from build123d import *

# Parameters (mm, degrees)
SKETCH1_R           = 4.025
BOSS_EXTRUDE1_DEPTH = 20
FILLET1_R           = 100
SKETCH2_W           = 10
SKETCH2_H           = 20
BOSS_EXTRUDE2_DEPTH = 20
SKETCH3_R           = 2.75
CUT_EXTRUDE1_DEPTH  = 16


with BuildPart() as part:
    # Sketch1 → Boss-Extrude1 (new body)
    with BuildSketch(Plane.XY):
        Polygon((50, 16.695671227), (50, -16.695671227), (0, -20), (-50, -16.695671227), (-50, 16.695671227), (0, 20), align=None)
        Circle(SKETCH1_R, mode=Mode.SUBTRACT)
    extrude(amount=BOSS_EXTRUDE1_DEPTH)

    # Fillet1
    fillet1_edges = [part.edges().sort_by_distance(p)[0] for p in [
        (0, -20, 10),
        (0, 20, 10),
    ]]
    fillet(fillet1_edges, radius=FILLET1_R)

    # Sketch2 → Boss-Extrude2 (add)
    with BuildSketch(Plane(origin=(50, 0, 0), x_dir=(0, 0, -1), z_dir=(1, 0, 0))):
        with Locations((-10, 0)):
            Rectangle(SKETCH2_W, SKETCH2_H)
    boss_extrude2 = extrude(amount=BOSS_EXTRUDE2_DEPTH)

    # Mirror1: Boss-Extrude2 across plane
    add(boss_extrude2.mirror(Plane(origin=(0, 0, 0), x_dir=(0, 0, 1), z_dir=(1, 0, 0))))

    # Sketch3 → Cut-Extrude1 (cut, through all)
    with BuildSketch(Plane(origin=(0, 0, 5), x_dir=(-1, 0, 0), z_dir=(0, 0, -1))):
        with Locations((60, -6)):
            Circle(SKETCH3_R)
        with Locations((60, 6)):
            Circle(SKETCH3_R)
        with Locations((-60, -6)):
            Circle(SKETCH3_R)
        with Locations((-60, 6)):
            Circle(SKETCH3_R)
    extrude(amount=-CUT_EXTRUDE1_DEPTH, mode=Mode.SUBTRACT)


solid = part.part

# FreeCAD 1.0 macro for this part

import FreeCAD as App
import Part
import Sketcher


def edges_at(feature, points):
    """Names of the edges that pass closest to the given points."""
    edges = feature.Shape.Edges
    near = lambda p: min(range(len(edges)), key=lambda i: edges[i].distToShape(Part.Vertex(*p))[0])
    return sorted({f"Edge{near(p) + 1}" for p in points})

doc = App.newDocument("Part")
body = doc.addObject("PartDesign::Body", "Body")

sketch1 = body.newObject("Sketcher::SketchObject", "Sketch")
sketch1.AttachmentSupport = (doc.getObject("XY_Plane"), [""])
sketch1.MapMode = "FlatFace"
sketch1.addGeometry(Part.LineSegment(App.Vector(50, -16.7, 0), App.Vector(50, 16.7, 0)), False)
sketch1.addGeometry(Part.LineSegment(App.Vector(50, 16.7, 0), App.Vector(0, 20, 0)), False)
sketch1.addGeometry(Part.LineSegment(App.Vector(0, 20, 0), App.Vector(-50, 16.7, 0)), False)
sketch1.addGeometry(Part.LineSegment(App.Vector(-50, 16.7, 0), App.Vector(-50, -16.7, 0)), False)
sketch1.addGeometry(Part.LineSegment(App.Vector(-50, -16.7, 0), App.Vector(0, -20, 0)), False)
sketch1.addGeometry(Part.LineSegment(App.Vector(0, -20, 0), App.Vector(50, -16.7, 0)), False)
sketch1.addGeometry(Part.Circle(App.Vector(0, 0, 0), App.Vector(0, 0, 1), 4), False)
sketch1.addConstraint(Sketcher.Constraint("Coincident", 0, 2, 1, 1))
sketch1.addConstraint(Sketcher.Constraint("Coincident", 1, 2, 2, 1))
sketch1.addConstraint(Sketcher.Constraint("Coincident", 2, 2, 3, 1))
sketch1.addConstraint(Sketcher.Constraint("Coincident", 3, 2, 4, 1))
sketch1.addConstraint(Sketcher.Constraint("Coincident", 4, 2, 5, 1))
sketch1.addConstraint(Sketcher.Constraint("Coincident", 5, 2, 0, 1))
sketch1.addConstraint(Sketcher.Constraint("Vertical", 0))
sketch1.addConstraint(Sketcher.Constraint("Vertical", 3))
sketch1.addConstraint(Sketcher.Constraint("Coincident", 6, 3, -1, 1))
sketch1.addConstraint(Sketcher.Constraint("Symmetric", 0, 2, 3, 2, -1, 1))
sketch1.addConstraint(Sketcher.Constraint("Symmetric", 1, 2, 4, 2, -1, 1))
sketch1.addConstraint(Sketcher.Constraint("PointOnObject", 1, 2, -2))
sketch1.addConstraint(Sketcher.Constraint("Parallel", 2, 5))
sketch1.addConstraint(Sketcher.Constraint("Horizontal", 0, 2, 2, 2))
sketch1.addConstraint(Sketcher.Constraint("Diameter", 6, 8.05))
sketch1.addConstraint(Sketcher.Constraint("DistanceX", -1, 1, 0, 2, 50.0))
sketch1.addConstraint(Sketcher.Constraint("DistanceY", -1, 1, 1, 2, 20.0))
sketch1.addConstraint(Sketcher.Constraint("DistanceY", 0, 1, 0, 2, 33.391342))
pad1 = body.newObject("PartDesign::Pad", "Pad")
pad1.Profile = sketch1
pad1.Length = 20
doc.recompute()

fillet = body.newObject("PartDesign::Fillet", "Fillet")
fillet.Base = (pad1, edges_at(pad1, [(0, -20, 10), (0, 20, 10)]))
fillet.Radius = 100

sketch2 = body.newObject("Sketcher::SketchObject", "Sketch001")
sketch2.AttachmentSupport = (doc.getObject("YZ_Plane"), [""])
sketch2.MapMode = "FlatFace"
sketch2.AttachmentOffset = App.Placement(App.Vector(0, 0, 50), App.Rotation())
sketch2.addGeometry(Part.LineSegment(App.Vector(10, 15, 0), App.Vector(-10, 15, 0)), False)
sketch2.addGeometry(Part.LineSegment(App.Vector(-10, 15, 0), App.Vector(-10, 5, 0)), False)
sketch2.addGeometry(Part.LineSegment(App.Vector(-10, 5, 0), App.Vector(10, 5, 0)), False)
sketch2.addGeometry(Part.LineSegment(App.Vector(10, 5, 0), App.Vector(10, 15, 0)), False)
sketch2.addConstraint(Sketcher.Constraint("Coincident", 0, 2, 1, 1))
sketch2.addConstraint(Sketcher.Constraint("Coincident", 1, 2, 2, 1))
sketch2.addConstraint(Sketcher.Constraint("Coincident", 2, 2, 3, 1))
sketch2.addConstraint(Sketcher.Constraint("Coincident", 3, 2, 0, 1))
sketch2.addConstraint(Sketcher.Constraint("Horizontal", 0))
sketch2.addConstraint(Sketcher.Constraint("Vertical", 1))
sketch2.addConstraint(Sketcher.Constraint("Horizontal", 2))
sketch2.addConstraint(Sketcher.Constraint("Vertical", 3))
sketch2.addConstraint(Sketcher.Constraint("DistanceX", 0, 2, 0, 1, 20.0))
sketch2.addConstraint(Sketcher.Constraint("DistanceY", 1, 2, 1, 1, 10.0))
sketch2.addConstraint(Sketcher.Constraint("DistanceX", 0, 2, -1, 1, 10.0))
sketch2.addConstraint(Sketcher.Constraint("DistanceY", -1, 1, 0, 2, 15.0))
pad2 = body.newObject("PartDesign::Pad", "Pad001")
pad2.Profile = sketch2
pad2.Length = 20
doc.recompute()

mirrored = body.newObject("PartDesign::Mirrored", "Mirrored")
mirrored.Originals = [pad2]
mirrored.MirrorPlane = (doc.getObject("YZ_Plane"), [""])
body.Tip = mirrored

sketch3 = body.newObject("Sketcher::SketchObject", "Sketch002")
sketch3.AttachmentSupport = (doc.getObject("XY_Plane"), [""])
sketch3.MapMode = "FlatFace"
sketch3.AttachmentOffset = App.Placement(App.Vector(0, 0, 5), App.Rotation())
sketch3.addGeometry(Part.Circle(App.Vector(-60, -6, 0), App.Vector(0, 0, 1), 2.8), False)
sketch3.addGeometry(Part.Circle(App.Vector(-60, 6, 0), App.Vector(0, 0, 1), 2.8), False)
sketch3.addGeometry(Part.Circle(App.Vector(60, -6, 0), App.Vector(0, 0, 1), 2.8), False)
sketch3.addGeometry(Part.Circle(App.Vector(60, 6, 0), App.Vector(0, 0, 1), 2.8), False)
sketch3.addConstraint(Sketcher.Constraint("Equal", 0, 1))
sketch3.addConstraint(Sketcher.Constraint("Equal", 1, 2))
sketch3.addConstraint(Sketcher.Constraint("Equal", 2, 3))
sketch3.addConstraint(Sketcher.Constraint("Symmetric", 1, 3, 2, 3, -1, 1))
sketch3.addConstraint(Sketcher.Constraint("Symmetric", 0, 3, 3, 3, -1, 1))
sketch3.addConstraint(Sketcher.Constraint("Symmetric", 0, 3, 2, 3, -2))
sketch3.addConstraint(Sketcher.Constraint("Diameter", 0, 5.5))
sketch3.addConstraint(Sketcher.Constraint("DistanceX", 0, 3, -1, 1, 60.0))
sketch3.addConstraint(Sketcher.Constraint("DistanceY", 0, 3, -1, 1, 6.0))
pocket1 = body.newObject("PartDesign::Pocket", "Pocket")
pocket1.Profile = sketch3
pocket1.Type = "ThroughAll"
pocket1.Reversed = True

doc.recompute()
